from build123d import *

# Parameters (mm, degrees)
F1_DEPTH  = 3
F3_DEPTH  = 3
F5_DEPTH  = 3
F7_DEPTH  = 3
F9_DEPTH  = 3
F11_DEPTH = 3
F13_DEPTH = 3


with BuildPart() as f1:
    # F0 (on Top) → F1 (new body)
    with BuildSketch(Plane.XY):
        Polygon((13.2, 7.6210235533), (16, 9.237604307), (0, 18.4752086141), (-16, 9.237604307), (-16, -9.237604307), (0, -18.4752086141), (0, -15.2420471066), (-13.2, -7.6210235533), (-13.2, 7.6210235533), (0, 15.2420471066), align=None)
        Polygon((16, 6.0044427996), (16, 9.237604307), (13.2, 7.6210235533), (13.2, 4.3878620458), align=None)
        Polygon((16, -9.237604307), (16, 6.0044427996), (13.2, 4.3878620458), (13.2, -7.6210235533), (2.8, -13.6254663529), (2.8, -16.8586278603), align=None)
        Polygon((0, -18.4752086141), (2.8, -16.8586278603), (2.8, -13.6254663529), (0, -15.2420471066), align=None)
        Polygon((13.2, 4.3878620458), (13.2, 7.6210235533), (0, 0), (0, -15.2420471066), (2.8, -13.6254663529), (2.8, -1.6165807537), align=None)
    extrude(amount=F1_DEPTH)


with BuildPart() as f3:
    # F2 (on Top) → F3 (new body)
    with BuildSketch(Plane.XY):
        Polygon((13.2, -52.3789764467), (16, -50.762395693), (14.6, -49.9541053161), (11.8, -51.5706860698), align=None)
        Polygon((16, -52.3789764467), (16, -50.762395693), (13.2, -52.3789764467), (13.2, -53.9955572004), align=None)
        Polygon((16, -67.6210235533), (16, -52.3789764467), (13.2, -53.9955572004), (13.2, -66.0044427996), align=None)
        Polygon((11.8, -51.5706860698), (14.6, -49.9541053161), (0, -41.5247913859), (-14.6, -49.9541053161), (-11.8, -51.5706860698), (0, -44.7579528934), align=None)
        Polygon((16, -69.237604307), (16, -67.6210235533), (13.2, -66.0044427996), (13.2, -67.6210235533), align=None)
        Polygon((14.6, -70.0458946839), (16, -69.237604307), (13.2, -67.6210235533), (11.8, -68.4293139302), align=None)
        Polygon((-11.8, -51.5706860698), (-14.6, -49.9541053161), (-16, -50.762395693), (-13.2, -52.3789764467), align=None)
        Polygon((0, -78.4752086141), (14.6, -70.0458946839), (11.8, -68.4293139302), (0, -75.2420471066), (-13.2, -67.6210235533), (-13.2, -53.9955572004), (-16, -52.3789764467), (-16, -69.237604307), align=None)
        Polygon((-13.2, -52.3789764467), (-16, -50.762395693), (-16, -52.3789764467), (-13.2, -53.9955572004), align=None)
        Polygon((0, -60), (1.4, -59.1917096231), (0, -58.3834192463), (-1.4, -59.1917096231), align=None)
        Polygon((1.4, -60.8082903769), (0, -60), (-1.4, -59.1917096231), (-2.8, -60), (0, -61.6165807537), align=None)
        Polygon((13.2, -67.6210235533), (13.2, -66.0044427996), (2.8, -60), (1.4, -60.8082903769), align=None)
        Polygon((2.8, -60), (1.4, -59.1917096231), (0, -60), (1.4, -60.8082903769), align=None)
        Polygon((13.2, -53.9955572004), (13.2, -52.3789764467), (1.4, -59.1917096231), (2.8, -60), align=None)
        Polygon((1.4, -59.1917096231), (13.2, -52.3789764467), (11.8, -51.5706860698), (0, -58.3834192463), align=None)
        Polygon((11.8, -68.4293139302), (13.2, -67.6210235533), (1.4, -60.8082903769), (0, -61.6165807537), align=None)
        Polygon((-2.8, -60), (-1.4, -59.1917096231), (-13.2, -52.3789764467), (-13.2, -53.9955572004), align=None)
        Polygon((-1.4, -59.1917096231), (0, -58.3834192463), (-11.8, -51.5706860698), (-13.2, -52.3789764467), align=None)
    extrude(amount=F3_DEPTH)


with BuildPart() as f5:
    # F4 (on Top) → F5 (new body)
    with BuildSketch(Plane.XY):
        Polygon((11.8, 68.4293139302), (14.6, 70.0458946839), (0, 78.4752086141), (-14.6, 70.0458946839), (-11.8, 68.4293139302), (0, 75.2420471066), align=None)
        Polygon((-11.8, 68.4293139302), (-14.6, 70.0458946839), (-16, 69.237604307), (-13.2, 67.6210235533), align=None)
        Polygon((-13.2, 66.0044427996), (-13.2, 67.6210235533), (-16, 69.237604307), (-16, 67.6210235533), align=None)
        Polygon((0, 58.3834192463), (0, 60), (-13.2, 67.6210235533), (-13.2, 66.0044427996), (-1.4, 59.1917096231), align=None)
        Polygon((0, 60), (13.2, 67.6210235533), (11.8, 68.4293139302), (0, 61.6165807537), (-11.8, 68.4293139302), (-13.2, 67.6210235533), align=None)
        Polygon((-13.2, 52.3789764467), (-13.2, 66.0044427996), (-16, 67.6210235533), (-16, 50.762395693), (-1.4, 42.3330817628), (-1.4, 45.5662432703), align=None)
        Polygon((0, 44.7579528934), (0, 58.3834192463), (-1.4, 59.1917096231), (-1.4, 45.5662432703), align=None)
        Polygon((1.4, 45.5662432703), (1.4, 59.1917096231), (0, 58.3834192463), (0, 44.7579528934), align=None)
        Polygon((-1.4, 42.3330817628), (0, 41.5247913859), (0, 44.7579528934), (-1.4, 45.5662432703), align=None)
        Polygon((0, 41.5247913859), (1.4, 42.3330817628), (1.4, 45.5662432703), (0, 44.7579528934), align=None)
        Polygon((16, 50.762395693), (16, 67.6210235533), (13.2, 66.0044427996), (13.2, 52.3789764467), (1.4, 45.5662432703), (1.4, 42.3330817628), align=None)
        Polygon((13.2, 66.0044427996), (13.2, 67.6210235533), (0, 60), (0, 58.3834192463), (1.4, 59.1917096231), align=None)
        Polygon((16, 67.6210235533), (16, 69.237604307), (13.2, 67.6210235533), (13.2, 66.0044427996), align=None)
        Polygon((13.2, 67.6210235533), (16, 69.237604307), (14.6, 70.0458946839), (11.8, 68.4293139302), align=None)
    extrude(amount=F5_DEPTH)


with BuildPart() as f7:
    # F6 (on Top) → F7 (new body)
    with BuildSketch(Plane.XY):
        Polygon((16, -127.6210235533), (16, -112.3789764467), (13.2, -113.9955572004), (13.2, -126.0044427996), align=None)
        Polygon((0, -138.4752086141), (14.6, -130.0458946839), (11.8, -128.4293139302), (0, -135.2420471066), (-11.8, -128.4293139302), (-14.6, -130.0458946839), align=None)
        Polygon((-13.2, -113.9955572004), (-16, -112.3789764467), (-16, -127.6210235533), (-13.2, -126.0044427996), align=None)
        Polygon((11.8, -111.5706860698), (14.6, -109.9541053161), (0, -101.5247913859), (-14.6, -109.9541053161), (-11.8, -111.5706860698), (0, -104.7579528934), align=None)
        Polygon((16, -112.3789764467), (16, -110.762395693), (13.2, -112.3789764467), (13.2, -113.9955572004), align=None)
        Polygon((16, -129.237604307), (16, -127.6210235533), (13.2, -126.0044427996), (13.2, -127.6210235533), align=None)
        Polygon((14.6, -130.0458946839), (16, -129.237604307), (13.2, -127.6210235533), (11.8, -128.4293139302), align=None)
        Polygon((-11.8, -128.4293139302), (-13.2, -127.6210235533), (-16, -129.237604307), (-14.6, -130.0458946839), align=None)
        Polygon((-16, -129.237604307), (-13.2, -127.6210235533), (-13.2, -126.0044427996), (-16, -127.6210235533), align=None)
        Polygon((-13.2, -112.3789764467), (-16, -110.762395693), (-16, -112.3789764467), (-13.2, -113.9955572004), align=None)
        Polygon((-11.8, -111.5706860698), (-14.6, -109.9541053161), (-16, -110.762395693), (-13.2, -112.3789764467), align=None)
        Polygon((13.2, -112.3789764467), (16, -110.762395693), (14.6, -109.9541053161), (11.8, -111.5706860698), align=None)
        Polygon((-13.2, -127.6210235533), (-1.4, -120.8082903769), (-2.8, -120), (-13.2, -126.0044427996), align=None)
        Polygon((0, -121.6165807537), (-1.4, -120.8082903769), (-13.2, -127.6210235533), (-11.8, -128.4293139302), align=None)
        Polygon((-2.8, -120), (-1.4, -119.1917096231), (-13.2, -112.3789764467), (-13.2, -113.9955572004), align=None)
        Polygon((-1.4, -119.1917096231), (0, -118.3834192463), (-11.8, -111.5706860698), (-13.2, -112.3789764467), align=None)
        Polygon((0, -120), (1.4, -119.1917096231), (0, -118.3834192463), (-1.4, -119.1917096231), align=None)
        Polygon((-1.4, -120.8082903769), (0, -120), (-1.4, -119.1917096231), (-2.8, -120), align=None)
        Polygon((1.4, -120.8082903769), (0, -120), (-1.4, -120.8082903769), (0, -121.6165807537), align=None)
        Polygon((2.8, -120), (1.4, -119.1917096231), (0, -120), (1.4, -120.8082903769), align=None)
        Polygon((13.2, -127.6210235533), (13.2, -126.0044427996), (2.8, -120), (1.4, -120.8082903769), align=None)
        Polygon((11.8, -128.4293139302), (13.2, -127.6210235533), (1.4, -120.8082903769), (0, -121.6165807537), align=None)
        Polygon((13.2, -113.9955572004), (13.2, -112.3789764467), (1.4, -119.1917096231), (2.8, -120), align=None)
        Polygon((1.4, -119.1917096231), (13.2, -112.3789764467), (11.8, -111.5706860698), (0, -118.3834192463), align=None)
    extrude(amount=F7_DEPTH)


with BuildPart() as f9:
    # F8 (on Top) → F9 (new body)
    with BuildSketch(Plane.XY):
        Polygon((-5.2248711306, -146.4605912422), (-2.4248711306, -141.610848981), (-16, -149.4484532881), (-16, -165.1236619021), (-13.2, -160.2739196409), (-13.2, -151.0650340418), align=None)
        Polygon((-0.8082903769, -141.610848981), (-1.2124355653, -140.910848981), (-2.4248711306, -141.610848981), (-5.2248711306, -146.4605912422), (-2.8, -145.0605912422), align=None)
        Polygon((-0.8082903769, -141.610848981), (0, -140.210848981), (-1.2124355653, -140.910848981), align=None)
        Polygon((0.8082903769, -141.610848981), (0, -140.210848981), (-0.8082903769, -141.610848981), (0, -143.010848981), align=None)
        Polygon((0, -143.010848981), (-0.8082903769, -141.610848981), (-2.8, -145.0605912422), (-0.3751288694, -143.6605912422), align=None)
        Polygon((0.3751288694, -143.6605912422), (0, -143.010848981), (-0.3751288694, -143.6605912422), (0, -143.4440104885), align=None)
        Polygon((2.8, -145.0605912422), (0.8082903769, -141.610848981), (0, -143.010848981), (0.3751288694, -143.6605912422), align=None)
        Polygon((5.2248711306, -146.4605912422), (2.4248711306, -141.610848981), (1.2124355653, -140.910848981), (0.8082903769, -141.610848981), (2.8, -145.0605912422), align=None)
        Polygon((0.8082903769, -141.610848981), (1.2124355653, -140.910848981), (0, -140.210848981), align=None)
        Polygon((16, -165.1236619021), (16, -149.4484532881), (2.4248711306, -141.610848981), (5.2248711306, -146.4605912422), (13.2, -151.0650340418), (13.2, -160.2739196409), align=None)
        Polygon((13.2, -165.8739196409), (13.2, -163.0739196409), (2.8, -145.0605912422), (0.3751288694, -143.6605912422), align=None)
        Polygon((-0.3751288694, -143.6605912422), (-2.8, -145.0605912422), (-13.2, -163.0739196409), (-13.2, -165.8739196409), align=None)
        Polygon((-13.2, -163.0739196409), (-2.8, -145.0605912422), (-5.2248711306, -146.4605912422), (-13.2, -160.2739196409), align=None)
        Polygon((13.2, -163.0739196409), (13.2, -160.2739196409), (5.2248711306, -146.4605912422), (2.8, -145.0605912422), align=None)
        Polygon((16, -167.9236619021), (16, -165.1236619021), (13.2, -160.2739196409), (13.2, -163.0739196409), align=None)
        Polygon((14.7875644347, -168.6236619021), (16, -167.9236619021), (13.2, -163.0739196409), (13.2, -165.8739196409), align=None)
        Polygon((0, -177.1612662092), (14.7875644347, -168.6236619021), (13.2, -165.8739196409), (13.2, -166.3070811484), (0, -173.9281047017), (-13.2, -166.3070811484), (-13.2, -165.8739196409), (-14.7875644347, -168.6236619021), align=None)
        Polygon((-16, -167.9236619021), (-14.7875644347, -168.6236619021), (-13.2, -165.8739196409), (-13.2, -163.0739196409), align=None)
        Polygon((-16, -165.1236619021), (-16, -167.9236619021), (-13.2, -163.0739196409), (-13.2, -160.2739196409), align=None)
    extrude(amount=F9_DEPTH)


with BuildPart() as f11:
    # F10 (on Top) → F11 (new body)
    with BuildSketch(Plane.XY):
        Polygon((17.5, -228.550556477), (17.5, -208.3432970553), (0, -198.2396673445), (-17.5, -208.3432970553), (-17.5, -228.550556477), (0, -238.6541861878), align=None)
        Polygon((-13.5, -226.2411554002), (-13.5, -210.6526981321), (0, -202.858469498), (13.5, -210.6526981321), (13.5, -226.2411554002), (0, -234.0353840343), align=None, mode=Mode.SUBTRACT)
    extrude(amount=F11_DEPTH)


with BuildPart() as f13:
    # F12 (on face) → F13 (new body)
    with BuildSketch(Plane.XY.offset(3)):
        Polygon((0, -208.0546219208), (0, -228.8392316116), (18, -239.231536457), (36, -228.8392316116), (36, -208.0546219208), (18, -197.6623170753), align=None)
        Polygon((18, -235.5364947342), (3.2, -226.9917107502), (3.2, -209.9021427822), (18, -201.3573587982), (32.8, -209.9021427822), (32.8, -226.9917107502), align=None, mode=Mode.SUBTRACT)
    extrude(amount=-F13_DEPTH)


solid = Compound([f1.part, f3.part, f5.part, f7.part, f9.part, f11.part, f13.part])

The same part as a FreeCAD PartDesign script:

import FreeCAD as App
import Part
import Sketcher
Q = App.Units.Quantity


def add_polygon(sketch, points):
    """Adds a closed chain of lines whose ends are joined by coincident constraints."""
    first, n = sketch.GeometryCount, len(points)
    for a, b in zip(points, points[1:] + points[:1]):
        sketch.addGeometry(Part.LineSegment(App.Vector(*a, 0), App.Vector(*b, 0)), False)
    for i in range(n):
        sketch.addConstraint(Sketcher.Constraint("Coincident", first + i, 2, first + (i + 1) % n, 1))

doc = App.newDocument("Part")
body = doc.addObject("PartDesign::Body", "Body")

# Sketch on XY plane
sketch1 = doc.addObject("Sketcher::SketchObject", "Sketch")
body.addObject(sketch1)
sketch1.AttachmentSupport = (doc.XY_Plane, [""])
sketch1.MapMode = "FlatFace"
add_polygon(sketch1, [(16, 9.2), (0, 18.5), (-16, 9.2), (-16, -9.2), (0, -18.5), (2.8, -16.9), (16, -9.2)])  # lines 0-6
add_polygon(sketch1, [(0, -15.2), (-13.2, -7.6), (-13.2, 7.6), (0, 15.2), (13.2, 7.6), (0, 0)])  # lines 7-12
add_polygon(sketch1, [(13.2, 4.4), (13.2, -7.6), (2.8, -13.6), (2.8, -1.6)])  # lines 13-16
sketch1.addConstraint(Sketcher.Constraint("Vertical", 2))
sketch1.addConstraint(Sketcher.Constraint("Vertical", 6))
sketch1.addConstraint(Sketcher.Constraint("Vertical", 8))
sketch1.addConstraint(Sketcher.Constraint("Vertical", 12))
sketch1.addConstraint(Sketcher.Constraint("Vertical", 13))
sketch1.addConstraint(Sketcher.Constraint("Vertical", 15))
sketch1.addConstraint(Sketcher.Constraint("Coincident", 11, 2, -1, 1))
sketch1.addConstraint(Sketcher.Constraint("Symmetric", 0, 2, 3, 2, -1, 1))
sketch1.addConstraint(Sketcher.Constraint("Symmetric", 1, 2, 5, 2, -1, 1))
sketch1.addConstraint(Sketcher.Constraint("Symmetric", 7, 2, 10, 2, -1, 1))
sketch1.addConstraint(Sketcher.Constraint("Symmetric", 9, 2, 12, 2, -1, 1))
sketch1.addConstraint(Sketcher.Constraint("Symmetric", 8, 2, 13, 2, -1, 1))
sketch1.addConstraint(Sketcher.Constraint("PointOnObject", 0, 2, -2))
sketch1.addConstraint(Sketcher.Constraint("Parallel", 0, 3))
sketch1.addConstraint(Sketcher.Constraint("Parallel", 1, 4))
sketch1.addConstraint(Sketcher.Constraint("Parallel", 3, 7))
sketch1.addConstraint(Sketcher.Constraint("Parallel", 5, 9))
sketch1.addConstraint(Sketcher.Constraint("Parallel", 9, 11))
sketch1.addConstraint(Sketcher.Constraint("Parallel", 11, 14))
sketch1.addConstraint(Sketcher.Constraint("Parallel", 14, 16))
sketch1.addConstraint(Sketcher.Constraint("Horizontal", 2, 2, 5, 2))
sketch1.addConstraint(Sketcher.Constraint("Vertical", 4, 2, 14, 2))
sketch1.addConstraint(Sketcher.Constraint("Equal", 5, 7))
sketch1.addConstraint(Sketcher.Constraint("Angle", 0, Q("150 deg")))
sketch1.addConstraint(Sketcher.Constraint("DistanceX", 1, 2, -1, 1, Q("16 mm")))
sketch1.addConstraint(Sketcher.Constraint("DistanceX", -1, 1, 4, 2, Q("2.8 mm")))
sketch1.addConstraint(Sketcher.Constraint("DistanceY", 2, 2, 2, 1, Q("18.475209 mm")))
sketch1.addConstraint(Sketcher.Constraint("DistanceY", 13, 2, 13, 1, Q("12.008886 mm")))
pad1 = doc.addObject("PartDesign::Pad", "Pad")
body.addObject(pad1)
pad1.Profile = sketch1
pad1.Length = 3
body2 = doc.addObject("PartDesign::Body", "Body001")

# Sketch on XY plane
sketch2 = doc.addObject("Sketcher::SketchObject", "Sketch001")
body2.addObject(sketch2)
sketch2.AttachmentSupport = (doc.getObject("XY_Plane001"), [""])
sketch2.MapMode = "FlatFace"
add_polygon(sketch2, [(16, -50.8), (14.6, -50), (0, -41.5), (-14.6, -50), (-16, -50.8), (-16, -69.2), (0, -78.5), (14.6, -70), (16, -69.2)])  # lines 0-8
add_polygon(sketch2, [(-11.8, -51.6), (0, -44.8), (11.8, -51.6), (0, -58.4)])  # lines 9-12
add_polygon(sketch2, [(-2.8, -60), (0, -61.6), (11.8, -68.4), (0, -75.2), (-13.2, -67.6), (-13.2, -54)])  # lines 13-18
add_polygon(sketch2, [(13.2, -54), (13.2, -66), (2.8, -60)])  # lines 19-21
sketch2.addConstraint(Sketcher.Constraint("Vertical", 4))
sketch2.addConstraint(Sketcher.Constraint("Vertical", 8))
sketch2.addConstraint(Sketcher.Constraint("Vertical", 17))
sketch2.addConstraint(Sketcher.Constraint("Vertical", 19))
sketch2.addConstraint(Sketcher.Constraint("Symmetric", 0, 2, 2, 2, -2))
sketch2.addConstraint(Sketcher.Constraint("Symmetric", 4, 2, 7, 2, -2))
sketch2.addConstraint(Sketcher.Constraint("Symmetric", 10, 2, 12, 2, -2))
sketch2.addConstraint(Sketcher.Constraint("Symmetric", 18, 2, 20, 2, -2))
sketch2.addConstraint(Sketcher.Constraint("Symmetric", 17, 2, 21, 2, -2))
sketch2.addConstraint(Sketcher.Constraint("PointOnObject", 1, 2, -2))
sketch2.addConstraint(Sketcher.Constraint("PointOnObject", 5, 2, -2))
sketch2.addConstraint(Sketcher.Constraint("PointOnObject", 9, 2, -2))
sketch2.addConstraint(Sketcher.Constraint("PointOnObject", 11, 2, -2))
sketch2.addConstraint(Sketcher.Constraint("PointOnObject", 13, 2, -2))
sketch2.addConstraint(Sketcher.Constraint("PointOnObject", 15, 2, -2))
sketch2.addConstraint(Sketcher.Constraint("Parallel", 0, 1))
sketch2.addConstraint(Sketcher.Constraint("Parallel", 2, 3))
sketch2.addConstraint(Sketcher.Constraint("Parallel", 1, 5))
sketch2.addConstraint(Sketcher.Constraint("Parallel", 3, 6))
sketch2.addConstraint(Sketcher.Constraint("Parallel", 7, 9))
sketch2.addConstraint(Sketcher.Constraint("Parallel", 9, 11))
sketch2.addConstraint(Sketcher.Constraint("Parallel", 12, 13))
sketch2.addConstraint(Sketcher.Constraint("Parallel", 13, 14))
sketch2.addConstraint(Sketcher.Constraint("Parallel", 11, 15))
sketch2.addConstraint(Sketcher.Constraint("Parallel", 14, 16))
sketch2.addConstraint(Sketcher.Constraint("Parallel", 16, 18))
sketch2.addConstraint(Sketcher.Constraint("Parallel", 18, 20))
sketch2.addConstraint(Sketcher.Constraint("Vertical", 0, 2, 6, 2))
sketch2.addConstraint(Sketcher.Constraint("Vertical", 10, 2, 14, 2))
sketch2.addConstraint(Sketcher.Constraint("Angle", 0, Q("150 deg")))
sketch2.addConstraint(Sketcher.Constraint("DistanceX", 3, 2, -1, 1, Q("16 mm")))
sketch2.addConstraint(Sketcher.Constraint("DistanceY", 18, 2, -1, 1, Q("60 mm")))
sketch2.addConstraint(Sketcher.Constraint("DistanceX", 12, 2, 18, 2, Q("9 mm")))
sketch2.addConstraint(Sketcher.Constraint("DistanceX", -1, 1, 0, 2, Q("14.6 mm")))
sketch2.addConstraint(Sketcher.Constraint("DistanceX", -1, 1, 10, 2, Q("11.8 mm")))
sketch2.addConstraint(Sketcher.Constraint("DistanceX", 16, 2, -1, 1, Q("13.2 mm")))
sketch2.addConstraint(Sketcher.Constraint("DistanceY", 4, 2, 4, 1, Q("18.475209 mm")))
sketch2.addConstraint(Sketcher.Constraint("DistanceY", 1, 2, -1, 1, Q("41.524791 mm")))
sketch2.addConstraint(Sketcher.Constraint("DistanceY", 11, 2, -1, 1, Q("58.383419 mm")))
pad2 = doc.addObject("PartDesign::Pad", "Pad001")
body2.addObject(pad2)
pad2.Profile = sketch2
pad2.Length = 3
body3 = doc.addObject("PartDesign::Body", "Body002")

# Sketch on XY plane
sketch3 = doc.addObject("Sketcher::SketchObject", "Sketch002")
body3.addObject(sketch3)
sketch3.AttachmentSupport = (doc.getObject("XY_Plane002"), [""])
sketch3.MapMode = "FlatFace"
add_polygon(sketch3, [(16, 50.8), (16, 69.2), (14.6, 70), (0, 78.5), (-14.6, 70), (-16, 69.2), (-16, 50.8), (-1.4, 42.3), (0, 41.5), (1.4, 42.3)])  # lines 0-9
add_polygon(sketch3, [(-1.4, 59.2), (-1.4, 45.6), (-13.2, 52.4), (-13.2, 66)])  # lines 10-13
add_polygon(sketch3, [(1.4, 59.2), (13.2, 66), (13.2, 52.4), (1.4, 45.6)])  # lines 14-17
add_polygon(sketch3, [(0, 75.2), (11.8, 68.4), (0, 61.6), (-11.8, 68.4)])  # lines 18-21
sketch3.addConstraint(Sketcher.Constraint("Vertical", 0))
sketch3.addConstraint(Sketcher.Constraint("Vertical", 5))
sketch3.addConstraint(Sketcher.Constraint("Vertical", 10))
sketch3.addConstraint(Sketcher.Constraint("Vertical", 12))
sketch3.addConstraint(Sketcher.Constraint("Vertical", 15))
sketch3.addConstraint(Sketcher.Constraint("Vertical", 17))
sketch3.addConstraint(Sketcher.Constraint("Symmetric", 1, 2, 3, 2, -2))
sketch3.addConstraint(Sketcher.Constraint("Symmetric", 0, 2, 4, 2, -2))
sketch3.addConstraint(Sketcher.Constraint("Symmetric", 6, 2, 8, 2, -2))
sketch3.addConstraint(Sketcher.Constraint("Symmetric", 12, 2, 14, 2, -2))
sketch3.addConstraint(Sketcher.Constraint("Symmetric", 10, 2, 16, 2, -2))
sketch3.addConstraint(Sketcher.Constraint("Symmetric", 18, 2, 20, 2, -2))
sketch3.addConstraint(Sketcher.Constraint("PointOnObject", 2, 2, -2))
sketch3.addConstraint(Sketcher.Constraint("PointOnObject", 7, 2, -2))
sketch3.addConstraint(Sketcher.Constraint("PointOnObject", 19, 2, -2))
sketch3.addConstraint(Sketcher.Constraint("PointOnObject", 21, 2, -2))
sketch3.addConstraint(Sketcher.Constraint("Parallel", 1, 2))
sketch3.addConstraint(Sketcher.Constraint("Parallel", 2, 6))
sketch3.addConstraint(Sketcher.Constraint("Parallel", 6, 7))
sketch3.addConstraint(Sketcher.Constraint("Parallel", 8, 9))
sketch3.addConstraint(Sketcher.Constraint("Parallel", 7, 11))
sketch3.addConstraint(Sketcher.Constraint("Parallel", 11, 13))
sketch3.addConstraint(Sketcher.Constraint("Parallel", 9, 14))
sketch3.addConstraint(Sketcher.Constraint("Parallel", 14, 16))
sketch3.addConstraint(Sketcher.Constraint("Parallel", 13, 18))
sketch3.addConstraint(Sketcher.Constraint("Parallel", 16, 19))
sketch3.addConstraint(Sketcher.Constraint("Vertical", 6, 2, 10, 2))
sketch3.addConstraint(Sketcher.Constraint("Equal", 3, 6))
sketch3.addConstraint(Sketcher.Constraint("Equal", 16, 18))
sketch3.addConstraint(Sketcher.Constraint("Angle", 1, Q("150 deg")))
sketch3.addConstraint(Sketcher.Constraint("DistanceX", -1, 1, 0, 2, Q("16 mm")))
sketch3.addConstraint(Sketcher.Constraint("DistanceX", -1, 1, 1, 2, Q("14.6 mm")))
sketch3.addConstraint(Sketcher.Constraint("DistanceX", 11, 2, -1, 1, Q("13.2 mm")))
sketch3.addConstraint(Sketcher.Constraint("DistanceY", 0, 1, 0, 2, Q("18.475209 mm")))
sketch3.addConstraint(Sketcher.Constraint("DistanceY", 10, 2, 10, 1, Q("13.625466 mm")))
sketch3.addConstraint(Sketcher.Constraint("DistanceY", -1, 1, 2, 2, Q("78.475209 mm")))
sketch3.addConstraint(Sketcher.Constraint("DistanceY", -1, 1, 13, 2, Q("59.19171 mm")))
sketch3.addConstraint(Sketcher.Constraint("DistanceY", -1, 1, 19, 2, Q("61.616581 mm")))
pad3 = doc.addObject("PartDesign::Pad", "Pad002")
body3.addObject(pad3)
pad3.Profile = sketch3
pad3.Length = 3
body4 = doc.addObject("PartDesign::Body", "Body003")

# Sketch on XY plane
sketch4 = doc.addObject("Sketcher::SketchObject", "Sketch003")
body4.addObject(sketch4)
sketch4.AttachmentSupport = (doc.getObject("XY_Plane003"), [""])
sketch4.MapMode = "FlatFace"
add_polygon(sketch4, [(14.6, -110), (0, -101.5), (-14.6, -110), (-16, -110.8), (-16, -129.2), (-14.6, -130), (0, -138.5), (14.6, -130), (16, -129.2), (16, -110.8)])  # lines 0-9
add_polygon(sketch4, [(-13.2, -114), (-2.8, -120), (-13.2, -126)])  # lines 10-12
add_polygon(sketch4, [(0, -118.4), (-11.8, -111.6), (0, -104.8), (11.8, -111.6)])  # lines 13-16
add_polygon(sketch4, [(13.2, -114), (13.2, -126), (2.8, -120)])  # lines 17-19
add_polygon(sketch4, [(11.8, -128.4), (0, -135.2), (-11.8, -128.4), (0, -121.6)])  # lines 20-23
sketch4.addConstraint(Sketcher.Constraint("Vertical", 3))
sketch4.addConstraint(Sketcher.Constraint("Vertical", 8))
sketch4.addConstraint(Sketcher.Constraint("Vertical", 12))
sketch4.addConstraint(Sketcher.Constraint("Vertical", 17))
sketch4.addConstraint(Sketcher.Constraint("Symmetric", 4, 2, 6, 2, -2))
sketch4.addConstraint(Sketcher.Constraint("Symmetric", 3, 2, 7, 2, -2))
sketch4.addConstraint(Sketcher.Constraint("Symmetric", 1, 2, 9, 2, -2))
sketch4.addConstraint(Sketcher.Constraint("Symmetric", 13, 2, 15, 2, -2))
sketch4.addConstraint(Sketcher.Constraint("Symmetric", 11, 2, 17, 2, -2))
sketch4.addConstraint(Sketcher.Constraint("Symmetric", 10, 2, 18, 2, -2))
sketch4.addConstraint(Sketcher.Constraint("Symmetric", 21, 2, 23, 2, -2))
sketch4.addConstraint(Sketcher.Constraint("PointOnObject", 0, 2, -2))
sketch4.addConstraint(Sketcher.Constraint("PointOnObject", 5, 2, -2))
sketch4.addConstraint(Sketcher.Constraint("PointOnObject", 14, 2, -2))
sketch4.addConstraint(Sketcher.Constraint("PointOnObject", 16, 2, -2))
sketch4.addConstraint(Sketcher.Constraint("PointOnObject", 20, 2, -2))
sketch4.addConstraint(Sketcher.Constraint("PointOnObject", 22, 2, -2))
sketch4.addConstraint(Sketcher.Constraint("Parallel", 1, 2))
sketch4.addConstraint(Sketcher.Constraint("Parallel", 0, 4))
sketch4.addConstraint(Sketcher.Constraint("Parallel", 4, 5))
sketch4.addConstraint(Sketcher.Constraint("Parallel", 5, 9))
sketch4.addConstraint(Sketcher.Constraint("Parallel", 9, 10))
sketch4.addConstraint(Sketcher.Constraint("Parallel", 7, 11))
sketch4.addConstraint(Sketcher.Constraint("Parallel", 10, 13))
sketch4.addConstraint(Sketcher.Constraint("Parallel", 11, 14))
sketch4.addConstraint(Sketcher.Constraint("Parallel", 16, 19))
sketch4.addConstraint(Sketcher.Constraint("Parallel", 19, 20))
sketch4.addConstraint(Sketcher.Constraint("Parallel", 20, 22))
sketch4.addConstraint(Sketcher.Constraint("Vertical", 1, 2, 4, 2))
sketch4.addConstraint(Sketcher.Constraint("Vertical", 13, 2, 21, 2))
sketch4.addConstraint(Sketcher.Constraint("Angle", 0, Q("150 deg")))
sketch4.addConstraint(Sketcher.Constraint("DistanceX", 2, 2, -1, 1, Q("16 mm")))
sketch4.addConstraint(Sketcher.Constraint("DistanceY", 10, 2, -1, 1, Q("120 mm")))
sketch4.addConstraint(Sketcher.Constraint("DistanceX", 13, 2, 10, 2, Q("9 mm")))
sketch4.addConstraint(Sketcher.Constraint("DistanceX", 1, 2, -1, 1, Q("14.6 mm")))
sketch4.addConstraint(Sketcher.Constraint("DistanceX", 10, 2, -1, 1, Q("2.8 mm")))
sketch4.addConstraint(Sketcher.Constraint("DistanceX", 11, 2, -1, 1, Q("13.2 mm")))
sketch4.addConstraint(Sketcher.Constraint("DistanceY", 3, 2, 3, 1, Q("18.475209 mm")))
sketch4.addConstraint(Sketcher.Constraint("DistanceY", 0, 2, -1, 1, Q("101.524791 mm")))
sketch4.addConstraint(Sketcher.Constraint("DistanceY", 16, 2, -1, 1, Q("118.383419 mm")))
sketch4.addConstraint(Sketcher.Constraint("DistanceY", 22, 2, -1, 1, Q("121.616581 mm")))
pad4 = doc.addObject("PartDesign::Pad", "Pad003")
body4.addObject(pad4)
pad4.Profile = sketch4
pad4.Length = 3
body5 = doc.addObject("PartDesign::Body", "Body004")

# Sketch on XY plane
sketch5 = doc.addObject("Sketcher::SketchObject", "Sketch004")
body5.addObject(sketch5)
sketch5.AttachmentSupport = (doc.getObject("XY_Plane004"), [""])
sketch5.MapMode = "FlatFace"
add_polygon(sketch5, [(-16, -149.45), (-16, -167.92), (-14.79, -168.62), (0, -177.16), (14.79, -168.62), (16, -167.92), (16, -149.45), (2.42, -141.61), (0, -140.21), (-2.42, -141.61)])  # lines 0-9
add_polygon(sketch5, [(-5.22, -146.46), (-13.2, -160.27), (-13.2, -151.07)])  # lines 10-12
add_polygon(sketch5, [(-13.2, -166.31), (-13.2, -165.87), (-0.38, -143.66), (0, -143.44), (0.38, -143.66), (13.2, -165.87), (13.2, -166.31), (0, -173.93)])  # lines 13-20
add_polygon(sketch5, [(13.2, -151.07), (13.2, -160.27), (5.22, -146.46)])  # lines 21-23
sketch5.addConstraint(Sketcher.Constraint("Vertical", 0))
sketch5.addConstraint(Sketcher.Constraint("Vertical", 5))
sketch5.addConstraint(Sketcher.Constraint("Vertical", 11))
sketch5.addConstraint(Sketcher.Constraint("Vertical", 13))
sketch5.addConstraint(Sketcher.Constraint("Vertical", 18))
sketch5.addConstraint(Sketcher.Constraint("Vertical", 21))
sketch5.addConstraint(Sketcher.Constraint("Symmetric", 1, 2, 3, 2, -2))
sketch5.addConstraint(Sketcher.Constraint("Symmetric", 0, 2, 4, 2, -2))
sketch5.addConstraint(Sketcher.Constraint("Symmetric", 6, 2, 8, 2, -2))
sketch5.addConstraint(Sketcher.Constraint("Symmetric", 14, 2, 16, 2, -2))
sketch5.addConstraint(Sketcher.Constraint("Symmetric", 13, 2, 17, 2, -2))
sketch5.addConstraint(Sketcher.Constraint("Symmetric", 10, 2, 21, 2, -2))
sketch5.addConstraint(Sketcher.Constraint("Symmetric", 12, 2, 22, 2, -2))
sketch5.addConstraint(Sketcher.Constraint("PointOnObject", 2, 2, -2))
sketch5.addConstraint(Sketcher.Constraint("PointOnObject", 7, 2, -2))
sketch5.addConstraint(Sketcher.Constraint("PointOnObject", 15, 2, -2))
sketch5.addConstraint(Sketcher.Constraint("PointOnObject", 19, 2, -2))
sketch5.addConstraint(Sketcher.Constraint("Parallel", 1, 2))
sketch5.addConstraint(Sketcher.Constraint("Parallel", 2, 6))
sketch5.addConstraint(Sketcher.Constraint("Parallel", 6, 7))
sketch5.addConstraint(Sketcher.Constraint("Parallel", 8, 9))
sketch5.addConstraint(Sketcher.Constraint("Perpendicular", 7, 10))
sketch5.addConstraint(Sketcher.Constraint("Parallel", 9, 12))
sketch5.addConstraint(Sketcher.Constraint("Parallel", 10, 14))
sketch5.addConstraint(Sketcher.Constraint("Parallel", 12, 15))
sketch5.addConstraint(Sketcher.Constraint("Perpendicular", 17, 19))
sketch5.addConstraint(Sketcher.Constraint("Parallel", 16, 20))
sketch5.addConstraint(Sketcher.Constraint("Parallel", 20, 23))
sketch5.addConstraint(Sketcher.Constraint("Vertical", 11, 2, 13, 2))
sketch5.addConstraint(Sketcher.Constraint("Angle", 1, Q("-30 deg")))
sketch5.addConstraint(Sketcher.Constraint("DistanceX", 0, 2, -1, 1, Q("16 mm")))
sketch5.addConstraint(Sketcher.Constraint("Distance", 1, Q("1.4 mm")))
sketch5.addConstraint(Sketcher.Constraint("Distance", 7, Q("2.8 mm")))
sketch5.addConstraint(Sketcher.Constraint("DistanceX", 10, 2, -1, 1, Q("13.2 mm")))
sketch5.addConstraint(Sketcher.Constraint("DistanceX", 12, 2, 8, 2, Q("2.8 mm")))
sketch5.addConstraint(Sketcher.Constraint("DistanceY", 13, 2, 10, 2, Q("5.6 mm")))
sketch5.addConstraint(Sketcher.Constraint("DistanceX", 14, 2, 6, 2, Q("2.8 mm")))
sketch5.addConstraint(Sketcher.Constraint("DistanceY", 0, 2, 0, 1, Q("18.475209 mm")))
sketch5.addConstraint(Sketcher.Constraint("DistanceY", 13, 1, 13, 2, Q("0.433162 mm")))
sketch5.addConstraint(Sketcher.Constraint("DistanceY", 0, 2, -1, 1, Q("167.923662 mm")))
sketch5.addConstraint(Sketcher.Constraint("DistanceY", 10, 2, -1, 1, Q("160.27392 mm")))
pad5 = doc.addObject("PartDesign::Pad", "Pad004")
body5.addObject(pad5)
pad5.Profile = sketch5
pad5.Length = 3
body6 = doc.addObject("PartDesign::Body", "Body005")

# Sketch on XY plane
sketch6 = doc.addObject("Sketcher::SketchObject", "Sketch005")
body6.addObject(sketch6)
sketch6.AttachmentSupport = (doc.getObject("XY_Plane005"), [""])
sketch6.MapMode = "FlatFace"
add_polygon(sketch6, [(18, -229), (18, -208), (0, -198), (-18, -208), (-18, -229), (0, -239)])  # lines 0-5
add_polygon(sketch6, [(0, -234), (-14, -226), (-14, -211), (0, -203), (14, -211), (14, -226)])  # lines 6-11
sketch6.addConstraint(Sketcher.Constraint("Vertical", 0))
sketch6.addConstraint(Sketcher.Constraint("Vertical", 3))
sketch6.addConstraint(Sketcher.Constraint("Vertical", 7))
sketch6.addConstraint(Sketcher.Constraint("Vertical", 10))
sketch6.addConstraint(Sketcher.Constraint("Symmetric", 0, 2, 2, 2, -2))
sketch6.addConstraint(Sketcher.Constraint("Symmetric", 7, 2, 9, 2, -2))
sketch6.addConstraint(Sketcher.Constraint("PointOnObject", 1, 2, -2))
sketch6.addConstraint(Sketcher.Constraint("PointOnObject", 4, 2, -2))
sketch6.addConstraint(Sketcher.Constraint("PointOnObject", 8, 2, -2))
sketch6.addConstraint(Sketcher.Constraint("PointOnObject", 11, 2, -2))
sketch6.addConstraint(Sketcher.Constraint("Parallel", 1, 4))
sketch6.addConstraint(Sketcher.Constraint("Parallel", 2, 5))
sketch6.addConstraint(Sketcher.Constraint("Parallel", 4, 6))
sketch6.addConstraint(Sketcher.Constraint("Parallel", 5, 8))
sketch6.addConstraint(Sketcher.Constraint("Parallel", 8, 11))
sketch6.addConstraint(Sketcher.Constraint("Angle", 1, Q("150 deg")))
sketch6.addConstraint(Sketcher.Constraint("DistanceX", 2, 2, 0, 2, Q("35 mm")))
sketch6.addConstraint(Sketcher.Constraint("DistanceX", 3, 2, 6, 2, Q("4 mm")))
sketch6.addConstraint(Sketcher.Constraint("DistanceY", 0, 1, 0, 2, Q("20.207259 mm")))
sketch6.addConstraint(Sketcher.Constraint("DistanceY", 7, 2, -1, 1, Q("210.652698 mm")))
sketch6.addConstraint(Sketcher.Constraint("DistanceY", 3, 2, 6, 2, Q("2.309401 mm")))
sketch6.addConstraint(Sketcher.Constraint("DistanceY", 7, 2, 2, 2, Q("2.309401 mm")))
pad6 = doc.addObject("PartDesign::Pad", "Pad005")
body6.addObject(pad6)
pad6.Profile = sketch6
pad6.Length = 3
body7 = doc.addObject("PartDesign::Body", "Body006")

# Sketch on XY plane
sketch7 = doc.addObject("Sketcher::SketchObject", "Sketch006")
body7.addObject(sketch7)
sketch7.AttachmentSupport = (doc.getObject("XY_Plane006"), [""])
sketch7.MapMode = "FlatFace"
sketch7.AttachmentOffset = App.Placement(App.Vector(0, 0, 3), App.Rotation())
add_polygon(sketch7, [(0, -208), (0, -229), (18, -239), (36, -229), (36, -208), (18, -198)])  # lines 0-5
add_polygon(sketch7, [(33, -227), (18, -236), (3, -227), (3, -210), (18, -201), (33, -210)])  # lines 6-11
sketch7.addConstraint(Sketcher.Constraint("Vertical", 0))
sketch7.addConstraint(Sketcher.Constraint("Vertical", 3))
sketch7.addConstraint(Sketcher.Constraint("Vertical", 8))
sketch7.addConstraint(Sketcher.Constraint("Vertical", 11))
sketch7.addConstraint(Sketcher.Constraint("PointOnObject", 0, 2, -2))
sketch7.addConstraint(Sketcher.Constraint("Parallel", 1, 4))
sketch7.addConstraint(Sketcher.Constraint("Parallel", 2, 5))
sketch7.addConstraint(Sketcher.Constraint("Parallel", 5, 6))
sketch7.addConstraint(Sketcher.Constraint("Parallel", 4, 7))
sketch7.addConstraint(Sketcher.Constraint("Parallel", 6, 9))
sketch7.addConstraint(Sketcher.Constraint("Parallel", 7, 10))
sketch7.addConstraint(Sketcher.Constraint("Horizontal", 0, 2, 2, 2))
sketch7.addConstraint(Sketcher.Constraint("Horizontal", 3, 2, 5, 2))
sketch7.addConstraint(Sketcher.Constraint("Horizontal", 8, 2, 10, 2))
sketch7.addConstraint(Sketcher.Constraint("Horizontal", 7, 2, 11, 2))
sketch7.addConstraint(Sketcher.Constraint("Vertical", 1, 2, 4, 2))
sketch7.addConstraint(Sketcher.Constraint("Vertical", 4, 2, 6, 2))
sketch7.addConstraint(Sketcher.Constraint("Angle", 1, Q("-30 deg")))
sketch7.addConstraint(Sketcher.Constraint("DistanceX", -1, 1, 1, 2, Q("18 mm")))
sketch7.addConstraint(Sketcher.Constraint("DistanceX", -1, 1, 7, 2, Q("3.2 mm")))
sketch7.addConstraint(Sketcher.Constraint("DistanceY", 0, 2, 0, 1, Q("20.78461 mm")))
sketch7.addConstraint(Sketcher.Constraint("DistanceY", 8, 1, 8, 2, Q("17.089568 mm")))
sketch7.addConstraint(Sketcher.Constraint("DistanceY", 0, 2, -1, 1, Q("228.839232 mm")))
sketch7.addConstraint(Sketcher.Constraint("DistanceY", 7, 2, -1, 1, Q("226.991711 mm")))
pad7 = doc.addObject("PartDesign::Pad", "Pad006")
body7.addObject(pad7)
pad7.Profile = sketch7
pad7.Length = 3
pad7.Reversed = True

doc.recompute()
